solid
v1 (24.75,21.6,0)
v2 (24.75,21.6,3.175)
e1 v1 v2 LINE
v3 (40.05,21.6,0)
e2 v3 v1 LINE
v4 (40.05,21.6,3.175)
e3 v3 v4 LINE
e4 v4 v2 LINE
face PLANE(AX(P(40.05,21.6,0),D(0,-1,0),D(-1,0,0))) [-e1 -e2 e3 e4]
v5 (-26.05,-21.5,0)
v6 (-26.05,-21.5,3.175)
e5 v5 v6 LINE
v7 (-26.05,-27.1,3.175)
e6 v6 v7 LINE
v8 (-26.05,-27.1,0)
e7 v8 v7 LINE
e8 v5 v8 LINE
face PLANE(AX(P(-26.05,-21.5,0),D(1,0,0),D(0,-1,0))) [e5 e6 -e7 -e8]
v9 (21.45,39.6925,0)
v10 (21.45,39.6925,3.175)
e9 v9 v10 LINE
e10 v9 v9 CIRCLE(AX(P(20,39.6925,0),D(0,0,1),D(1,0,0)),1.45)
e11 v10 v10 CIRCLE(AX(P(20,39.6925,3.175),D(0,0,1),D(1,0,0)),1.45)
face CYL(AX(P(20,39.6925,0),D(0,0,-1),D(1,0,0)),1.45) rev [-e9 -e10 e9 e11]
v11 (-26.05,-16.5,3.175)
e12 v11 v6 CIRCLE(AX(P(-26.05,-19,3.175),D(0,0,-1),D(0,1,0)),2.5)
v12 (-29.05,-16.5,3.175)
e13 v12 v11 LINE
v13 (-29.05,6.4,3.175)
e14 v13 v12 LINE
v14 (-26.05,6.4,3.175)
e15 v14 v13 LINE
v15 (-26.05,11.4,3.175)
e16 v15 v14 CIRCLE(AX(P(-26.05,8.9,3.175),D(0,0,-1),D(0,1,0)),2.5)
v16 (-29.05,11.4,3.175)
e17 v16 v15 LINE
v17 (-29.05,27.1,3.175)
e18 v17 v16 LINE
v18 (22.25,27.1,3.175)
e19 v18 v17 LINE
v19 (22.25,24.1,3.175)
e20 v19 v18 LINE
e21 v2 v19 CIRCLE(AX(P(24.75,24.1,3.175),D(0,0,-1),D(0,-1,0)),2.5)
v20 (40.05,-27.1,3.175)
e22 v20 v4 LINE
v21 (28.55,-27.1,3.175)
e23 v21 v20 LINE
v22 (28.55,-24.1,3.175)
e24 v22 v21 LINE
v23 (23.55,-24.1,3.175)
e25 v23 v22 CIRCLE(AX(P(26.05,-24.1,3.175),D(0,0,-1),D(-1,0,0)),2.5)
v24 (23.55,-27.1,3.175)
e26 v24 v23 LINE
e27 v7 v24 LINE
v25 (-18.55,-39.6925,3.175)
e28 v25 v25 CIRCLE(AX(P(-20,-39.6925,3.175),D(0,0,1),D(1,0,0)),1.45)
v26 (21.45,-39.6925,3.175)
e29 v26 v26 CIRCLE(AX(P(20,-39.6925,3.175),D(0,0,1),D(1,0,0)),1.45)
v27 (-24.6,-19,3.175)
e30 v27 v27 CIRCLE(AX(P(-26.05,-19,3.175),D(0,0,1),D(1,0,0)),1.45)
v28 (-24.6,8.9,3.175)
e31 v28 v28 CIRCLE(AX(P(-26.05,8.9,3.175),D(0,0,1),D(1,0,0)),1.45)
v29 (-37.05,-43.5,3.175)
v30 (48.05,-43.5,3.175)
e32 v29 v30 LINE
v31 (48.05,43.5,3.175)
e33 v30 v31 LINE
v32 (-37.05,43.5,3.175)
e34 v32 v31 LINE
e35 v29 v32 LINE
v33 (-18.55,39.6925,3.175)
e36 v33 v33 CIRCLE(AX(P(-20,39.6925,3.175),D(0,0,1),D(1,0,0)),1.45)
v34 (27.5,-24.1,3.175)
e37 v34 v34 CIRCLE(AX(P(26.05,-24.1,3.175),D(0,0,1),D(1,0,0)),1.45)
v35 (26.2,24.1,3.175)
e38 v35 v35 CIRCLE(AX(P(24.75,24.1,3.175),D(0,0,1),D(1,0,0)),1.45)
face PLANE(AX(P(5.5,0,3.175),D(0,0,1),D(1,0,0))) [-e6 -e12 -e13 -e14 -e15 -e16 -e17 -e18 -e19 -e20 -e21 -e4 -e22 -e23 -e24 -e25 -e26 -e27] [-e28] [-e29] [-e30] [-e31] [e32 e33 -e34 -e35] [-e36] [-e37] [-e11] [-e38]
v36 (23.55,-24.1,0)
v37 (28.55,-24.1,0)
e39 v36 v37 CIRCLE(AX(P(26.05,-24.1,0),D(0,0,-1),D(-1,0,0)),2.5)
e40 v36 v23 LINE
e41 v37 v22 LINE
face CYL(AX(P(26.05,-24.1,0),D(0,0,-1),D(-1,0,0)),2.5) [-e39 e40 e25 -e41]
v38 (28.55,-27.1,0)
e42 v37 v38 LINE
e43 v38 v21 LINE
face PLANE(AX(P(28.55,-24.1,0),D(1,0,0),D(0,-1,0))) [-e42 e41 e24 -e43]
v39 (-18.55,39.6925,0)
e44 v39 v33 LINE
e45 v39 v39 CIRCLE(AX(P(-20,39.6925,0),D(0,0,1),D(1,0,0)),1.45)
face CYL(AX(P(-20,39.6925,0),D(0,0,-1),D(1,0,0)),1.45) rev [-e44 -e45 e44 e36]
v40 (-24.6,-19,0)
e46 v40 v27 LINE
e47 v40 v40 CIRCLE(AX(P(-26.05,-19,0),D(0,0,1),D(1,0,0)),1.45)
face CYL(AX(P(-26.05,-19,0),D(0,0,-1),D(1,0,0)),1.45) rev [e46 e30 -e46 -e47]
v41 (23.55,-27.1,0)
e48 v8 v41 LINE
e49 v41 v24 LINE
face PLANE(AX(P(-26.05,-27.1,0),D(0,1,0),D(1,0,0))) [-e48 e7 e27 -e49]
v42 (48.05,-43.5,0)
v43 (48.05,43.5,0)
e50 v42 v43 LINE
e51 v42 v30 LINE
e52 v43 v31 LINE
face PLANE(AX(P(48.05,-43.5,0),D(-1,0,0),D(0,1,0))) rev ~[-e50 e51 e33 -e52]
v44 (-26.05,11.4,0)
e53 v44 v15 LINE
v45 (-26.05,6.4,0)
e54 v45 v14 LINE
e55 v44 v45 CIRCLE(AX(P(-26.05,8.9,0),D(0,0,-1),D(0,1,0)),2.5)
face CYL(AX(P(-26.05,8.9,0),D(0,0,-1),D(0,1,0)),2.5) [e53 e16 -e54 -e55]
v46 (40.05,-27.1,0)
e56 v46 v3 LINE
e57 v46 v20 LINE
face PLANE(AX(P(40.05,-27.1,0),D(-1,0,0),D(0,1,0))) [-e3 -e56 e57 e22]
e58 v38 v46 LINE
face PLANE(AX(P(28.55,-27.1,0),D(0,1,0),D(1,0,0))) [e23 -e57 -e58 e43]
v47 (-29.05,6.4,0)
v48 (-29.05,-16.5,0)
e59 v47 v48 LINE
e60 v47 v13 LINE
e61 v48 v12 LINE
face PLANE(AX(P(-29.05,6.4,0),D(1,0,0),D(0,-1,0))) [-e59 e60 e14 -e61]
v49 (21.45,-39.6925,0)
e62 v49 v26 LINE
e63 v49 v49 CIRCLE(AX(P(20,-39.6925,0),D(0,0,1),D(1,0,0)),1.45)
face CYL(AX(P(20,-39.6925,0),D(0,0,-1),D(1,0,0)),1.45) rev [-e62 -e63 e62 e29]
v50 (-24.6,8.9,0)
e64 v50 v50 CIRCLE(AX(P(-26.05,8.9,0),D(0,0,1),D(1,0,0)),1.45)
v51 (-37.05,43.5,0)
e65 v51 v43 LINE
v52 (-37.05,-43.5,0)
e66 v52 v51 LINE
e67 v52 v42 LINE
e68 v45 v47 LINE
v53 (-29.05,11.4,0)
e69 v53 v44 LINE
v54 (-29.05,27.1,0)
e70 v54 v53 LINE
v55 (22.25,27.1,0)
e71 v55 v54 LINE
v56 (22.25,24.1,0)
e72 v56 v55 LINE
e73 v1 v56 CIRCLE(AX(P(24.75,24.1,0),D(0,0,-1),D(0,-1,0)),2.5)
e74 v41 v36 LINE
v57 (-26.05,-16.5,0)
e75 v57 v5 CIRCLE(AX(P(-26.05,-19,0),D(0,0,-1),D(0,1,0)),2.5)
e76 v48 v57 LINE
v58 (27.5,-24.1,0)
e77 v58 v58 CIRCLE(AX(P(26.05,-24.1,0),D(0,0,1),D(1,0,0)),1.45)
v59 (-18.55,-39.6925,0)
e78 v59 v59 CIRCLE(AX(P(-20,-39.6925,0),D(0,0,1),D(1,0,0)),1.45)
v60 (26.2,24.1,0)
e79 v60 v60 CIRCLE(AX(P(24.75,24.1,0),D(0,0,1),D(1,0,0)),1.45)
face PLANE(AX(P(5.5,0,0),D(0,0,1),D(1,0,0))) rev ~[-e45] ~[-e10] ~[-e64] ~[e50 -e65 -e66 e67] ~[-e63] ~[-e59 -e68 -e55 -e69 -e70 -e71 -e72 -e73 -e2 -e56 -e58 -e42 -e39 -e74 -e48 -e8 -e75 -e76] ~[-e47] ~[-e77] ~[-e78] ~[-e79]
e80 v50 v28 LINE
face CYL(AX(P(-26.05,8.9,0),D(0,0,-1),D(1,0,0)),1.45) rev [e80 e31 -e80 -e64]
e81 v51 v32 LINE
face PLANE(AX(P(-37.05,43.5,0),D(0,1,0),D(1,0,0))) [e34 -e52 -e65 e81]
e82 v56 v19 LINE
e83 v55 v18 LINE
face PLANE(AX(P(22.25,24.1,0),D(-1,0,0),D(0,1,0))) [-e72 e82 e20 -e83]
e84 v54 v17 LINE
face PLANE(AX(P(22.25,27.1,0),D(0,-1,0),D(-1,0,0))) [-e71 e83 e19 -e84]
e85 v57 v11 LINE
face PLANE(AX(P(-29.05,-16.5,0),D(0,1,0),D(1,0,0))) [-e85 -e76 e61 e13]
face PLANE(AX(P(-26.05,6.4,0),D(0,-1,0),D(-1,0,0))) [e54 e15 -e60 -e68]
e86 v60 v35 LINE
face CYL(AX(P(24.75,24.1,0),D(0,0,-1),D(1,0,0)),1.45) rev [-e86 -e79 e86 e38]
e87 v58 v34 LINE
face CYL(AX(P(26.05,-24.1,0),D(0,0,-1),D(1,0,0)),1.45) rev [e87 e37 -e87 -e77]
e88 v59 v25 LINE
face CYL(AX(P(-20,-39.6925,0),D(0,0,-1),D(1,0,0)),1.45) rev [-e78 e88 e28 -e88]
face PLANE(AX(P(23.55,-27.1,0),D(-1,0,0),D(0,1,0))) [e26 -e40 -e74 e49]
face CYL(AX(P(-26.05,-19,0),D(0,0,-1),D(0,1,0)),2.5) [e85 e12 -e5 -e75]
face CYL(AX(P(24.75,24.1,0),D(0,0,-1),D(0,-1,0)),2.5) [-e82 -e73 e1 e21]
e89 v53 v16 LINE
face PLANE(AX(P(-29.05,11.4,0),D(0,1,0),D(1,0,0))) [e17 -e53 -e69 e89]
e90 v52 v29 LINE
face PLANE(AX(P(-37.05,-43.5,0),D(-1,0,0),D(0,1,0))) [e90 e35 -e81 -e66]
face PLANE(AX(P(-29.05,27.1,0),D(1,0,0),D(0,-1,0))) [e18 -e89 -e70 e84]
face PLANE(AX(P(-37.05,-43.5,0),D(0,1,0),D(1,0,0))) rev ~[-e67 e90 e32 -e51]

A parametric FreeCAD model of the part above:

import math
import FreeCAD as App
import Part
import Sketcher

V = App.Vector


def add_polygon(sketch, points):
    """Adds a closed chain of lines whose ends are joined by coincident constraints."""
    first, n = sketch.GeometryCount, len(points)
    for a, b in zip(points, points[1:] + points[:1]):
        sketch.addGeometry(Part.LineSegment(App.Vector(*a, 0), App.Vector(*b, 0)), False)
    for i in range(n):
        sketch.addConstraint(Sketcher.Constraint("Coincident", first + i, 2, first + (i + 1) % n, 1))

doc = App.newDocument("Part")
body = doc.addObject("PartDesign::Body", "Body")

# Sketch on XY plane
sketch1 = doc.addObject("Sketcher::SketchObject", "Sketch")
body.addObject(sketch1)
sketch1.AttachmentSupport = (doc.XY_Plane, [""])
sketch1.MapMode = "FlatFace"
add_polygon(sketch1, [(-37.05, 43.5), (-37.05, -43.5), (48.05, -43.5), (48.05, 43.5)])  # lines 0-3
sketch1.addGeometry(Part.Circle(V(-20, -39.6925, 0), V(0, 0, 1), 1.45), False)  # 4
sketch1.addGeometry(Part.Circle(V(-26.05, -19, 0), V(0, 0, 1), 1.45), False)  # 5
sketch1.addGeometry(Part.Circle(V(20, -39.6925, 0), V(0, 0, 1), 1.45), False)  # 6
sketch1.addGeometry(Part.Circle(V(26.05, -24.1, 0), V(0, 0, 1), 1.45), False)  # 7
sketch1.addGeometry(Part.Circle(V(-26.05, 8.9, 0), V(0, 0, 1), 1.45), False)  # 8
sketch1.addGeometry(Part.Circle(V(-20, 39.6925, 0), V(0, 0, 1), 1.45), False)  # 9
sketch1.addGeometry(Part.LineSegment(V(-29.05, 6.4, 0), V(-26.05, 6.4, 0)), False)  # 10
sketch1.addGeometry(Part.ArcOfCircle(Part.Circle(V(-26.05, 8.9, 0), V(0, 0, 1), 2.5), math.radians(-90), math.radians(90)), False)  # 11
sketch1.addGeometry(Part.LineSegment(V(-26.05, 11.4, 0), V(-29.05, 11.4, 0)), False)  # 12
sketch1.addGeometry(Part.LineSegment(V(-29.05, 11.4, 0), V(-29.05, 27.1, 0)), False)  # 13
sketch1.addGeometry(Part.LineSegment(V(-29.05, 27.1, 0), V(22.25, 27.1, 0)), False)  # 14
sketch1.addGeometry(Part.LineSegment(V(22.25, 27.1, 0), V(22.25, 24.1, 0)), False)  # 15
sketch1.addGeometry(Part.ArcOfCircle(Part.Circle(V(24.75, 24.1, 0), V(0, 0, 1), 2.5), math.radians(180), math.radians(270)), False)  # 16
sketch1.addGeometry(Part.LineSegment(V(24.75, 21.6, 0), V(40.05, 21.6, 0)), False)  # 17
sketch1.addGeometry(Part.LineSegment(V(40.05, 21.6, 0), V(40.05, -27.1, 0)), False)  # 18
sketch1.addGeometry(Part.LineSegment(V(40.05, -27.1, 0), V(28.55, -27.1, 0)), False)  # 19
sketch1.addGeometry(Part.LineSegment(V(28.55, -27.1, 0), V(28.55, -24.1, 0)), False)  # 20
sketch1.addGeometry(Part.ArcOfCircle(Part.Circle(V(26.05, -24.1, 0), V(0, 0, 1), 2.5), math.radians(0), math.radians(180)), False)  # 21
sketch1.addGeometry(Part.LineSegment(V(23.55, -24.1, 0), V(23.55, -27.1, 0)), False)  # 22
sketch1.addGeometry(Part.LineSegment(V(23.55, -27.1, 0), V(-26.05, -27.1, 0)), False)  # 23
sketch1.addGeometry(Part.LineSegment(V(-26.05, -27.1, 0), V(-26.05, -21.5, 0)), False)  # 24
sketch1.addGeometry(Part.ArcOfCircle(Part.Circle(V(-26.05, -19, 0), V(0, 0, 1), 2.5), math.radians(-90), math.radians(90)), False)  # 25
sketch1.addGeometry(Part.LineSegment(V(-26.05, -16.5, 0), V(-29.05, -16.5, 0)), False)  # 26
sketch1.addGeometry(Part.LineSegment(V(-29.05, -16.5, 0), V(-29.05, 6.4, 0)), False)  # 27
sketch1.addGeometry(Part.Circle(V(20, 39.6925, 0), V(0, 0, 1), 1.45), False)  # 28
sketch1.addGeometry(Part.Circle(V(24.75, 24.1, 0), V(0, 0, 1), 1.45), False)  # 29
sketch1.addConstraint(Sketcher.Constraint("Tangent", 10, 2, 11, 1))
sketch1.addConstraint(Sketcher.Constraint("Tangent", 11, 2, 12, 1))
sketch1.addConstraint(Sketcher.Constraint("Coincident", 12, 2, 13, 1))
sketch1.addConstraint(Sketcher.Constraint("Coincident", 13, 2, 14, 1))
sketch1.addConstraint(Sketcher.Constraint("Coincident", 14, 2, 15, 1))
sketch1.addConstraint(Sketcher.Constraint("Tangent", 15, 2, 16, 1))
sketch1.addConstraint(Sketcher.Constraint("Tangent", 16, 2, 17, 1))
sketch1.addConstraint(Sketcher.Constraint("Coincident", 17, 2, 18, 1))
sketch1.addConstraint(Sketcher.Constraint("Coincident", 18, 2, 19, 1))
sketch1.addConstraint(Sketcher.Constraint("Coincident", 19, 2, 20, 1))
sketch1.addConstraint(Sketcher.Constraint("Tangent", 20, 2, 21, 1))
sketch1.addConstraint(Sketcher.Constraint("Tangent", 21, 2, 22, 1))
sketch1.addConstraint(Sketcher.Constraint("Coincident", 22, 2, 23, 1))
sketch1.addConstraint(Sketcher.Constraint("Coincident", 23, 2, 24, 1))
sketch1.addConstraint(Sketcher.Constraint("Coincident", 24, 2, 25, 1))
sketch1.addConstraint(Sketcher.Constraint("Tangent", 25, 2, 26, 1))
sketch1.addConstraint(Sketcher.Constraint("Coincident", 26, 2, 27, 1))
sketch1.addConstraint(Sketcher.Constraint("Coincident", 27, 2, 10, 1))
sketch1.addConstraint(Sketcher.Constraint("Vertical", 0))
sketch1.addConstraint(Sketcher.Constraint("Horizontal", 1))
sketch1.addConstraint(Sketcher.Constraint("Vertical", 2))
sketch1.addConstraint(Sketcher.Constraint("Horizontal", 3))
sketch1.addConstraint(Sketcher.Constraint("Horizontal", 10))
sketch1.addConstraint(Sketcher.Constraint("Horizontal", 12))
sketch1.addConstraint(Sketcher.Constraint("Vertical", 13))
sketch1.addConstraint(Sketcher.Constraint("Horizontal", 14))
sketch1.addConstraint(Sketcher.Constraint("Vertical", 15))
sketch1.addConstraint(Sketcher.Constraint("Horizontal", 17))
sketch1.addConstraint(Sketcher.Constraint("Vertical", 18))
sketch1.addConstraint(Sketcher.Constraint("Horizontal", 19))
sketch1.addConstraint(Sketcher.Constraint("Vertical", 20))
sketch1.addConstraint(Sketcher.Constraint("Vertical", 22))
sketch1.addConstraint(Sketcher.Constraint("Horizontal", 23))
sketch1.addConstraint(Sketcher.Constraint("Vertical", 24))
sketch1.addConstraint(Sketcher.Constraint("Horizontal", 26))
sketch1.addConstraint(Sketcher.Constraint("Vertical", 27))
sketch1.addConstraint(Sketcher.Constraint("Coincident", 11, 3, 8, 3))
sketch1.addConstraint(Sketcher.Constraint("Coincident", 21, 3, 7, 3))
sketch1.addConstraint(Sketcher.Constraint("Coincident", 25, 3, 5, 3))
sketch1.addConstraint(Sketcher.Constraint("Coincident", 29, 3, 16, 3))
sketch1.addConstraint(Sketcher.Constraint("Equal", 4, 5))
sketch1.addConstraint(Sketcher.Constraint("Equal", 5, 6))
sketch1.addConstraint(Sketcher.Constraint("Equal", 6, 7))
sketch1.addConstraint(Sketcher.Constraint("Equal", 7, 8))
sketch1.addConstraint(Sketcher.Constraint("Equal", 8, 9))
sketch1.addConstraint(Sketcher.Constraint("Equal", 11, 16))
sketch1.addConstraint(Sketcher.Constraint("Equal", 16, 21))
sketch1.addConstraint(Sketcher.Constraint("Equal", 21, 25))
sketch1.addConstraint(Sketcher.Constraint("Equal", 9, 28))
sketch1.addConstraint(Sketcher.Constraint("Equal", 28, 29))
sketch1.addConstraint(Sketcher.Constraint("Symmetric", 6, 3, 9, 3, -1, 1))
sketch1.addConstraint(Sketcher.Constraint("Symmetric", 4, 3, 28, 3, -1, 1))
sketch1.addConstraint(Sketcher.Constraint("Symmetric", 4, 3, 6, 3, -2))
sketch1.addConstraint(Sketcher.Constraint("Horizontal", 19, 2, 22, 2))
sketch1.addConstraint(Sketcher.Constraint("Vertical", 5, 3, 8, 3))
sketch1.addConstraint(Sketcher.Constraint("Vertical", 11, 2, 23, 2))
sketch1.addConstraint(Sketcher.Constraint("Vertical", 13, 2, 26, 2))
sketch1.addConstraint(Sketcher.Constraint("Equal", 26, 15))
sketch1.addConstraint(Sketcher.Constraint("Equal", 15, 20))
sketch1.addConstraint(Sketcher.Constraint("Diameter", 4, 2.9))
sketch1.addConstraint(Sketcher.Constraint("Radius", 11, 2.5))
sketch1.addConstraint(Sketcher.Constraint("DistanceX", 10, 1, 10, 2, 3.0))
sketch1.addConstraint(Sketcher.Constraint("DistanceY", 0, 2, 0, 1, 87.0))
sketch1.addConstraint(Sketcher.Constraint("DistanceX", 1, 1, 1, 2, 85.1))
sketch1.addConstraint(Sketcher.Constraint("DistanceX", 14, 1, 14, 2, 51.3))
sketch1.addConstraint(Sketcher.Constraint("DistanceX", 17, 1, 17, 2, 15.3))
sketch1.addConstraint(Sketcher.Constraint("DistanceX", 19, 2, 19, 1, 11.5))
sketch1.addConstraint(Sketcher.Constraint("DistanceY", 13, 1, 13, 2, 15.7))
sketch1.addConstraint(Sketcher.Constraint("DistanceY", 18, 2, 18, 1, 48.7))
sketch1.addConstraint(Sketcher.Constraint("DistanceY", 24, 1, 24, 2, 5.6))
sketch1.addConstraint(Sketcher.Constraint("DistanceX", 4, 3, -1, 1, 20.0))
sketch1.addConstraint(Sketcher.Constraint("DistanceY", 5, 3, -1, 1, 19.0))
sketch1.addConstraint(Sketcher.Constraint("DistanceX", 0, 2, 5, 3, 11.0))
sketch1.addConstraint(Sketcher.Constraint("DistanceY", 0, 2, 24, 2, 22.0))
sketch1.addConstraint(Sketcher.Constraint("DistanceX", 5, 3, -1, 1, 26.05))
sketch1.addConstraint(Sketcher.Constraint("DistanceY", 4, 3, 9, 3, 79.385))
pad1 = doc.addObject("PartDesign::Pad", "Pad")
body.addObject(pad1)
pad1.Profile = sketch1
pad1.Length = 3.175

doc.recompute()
